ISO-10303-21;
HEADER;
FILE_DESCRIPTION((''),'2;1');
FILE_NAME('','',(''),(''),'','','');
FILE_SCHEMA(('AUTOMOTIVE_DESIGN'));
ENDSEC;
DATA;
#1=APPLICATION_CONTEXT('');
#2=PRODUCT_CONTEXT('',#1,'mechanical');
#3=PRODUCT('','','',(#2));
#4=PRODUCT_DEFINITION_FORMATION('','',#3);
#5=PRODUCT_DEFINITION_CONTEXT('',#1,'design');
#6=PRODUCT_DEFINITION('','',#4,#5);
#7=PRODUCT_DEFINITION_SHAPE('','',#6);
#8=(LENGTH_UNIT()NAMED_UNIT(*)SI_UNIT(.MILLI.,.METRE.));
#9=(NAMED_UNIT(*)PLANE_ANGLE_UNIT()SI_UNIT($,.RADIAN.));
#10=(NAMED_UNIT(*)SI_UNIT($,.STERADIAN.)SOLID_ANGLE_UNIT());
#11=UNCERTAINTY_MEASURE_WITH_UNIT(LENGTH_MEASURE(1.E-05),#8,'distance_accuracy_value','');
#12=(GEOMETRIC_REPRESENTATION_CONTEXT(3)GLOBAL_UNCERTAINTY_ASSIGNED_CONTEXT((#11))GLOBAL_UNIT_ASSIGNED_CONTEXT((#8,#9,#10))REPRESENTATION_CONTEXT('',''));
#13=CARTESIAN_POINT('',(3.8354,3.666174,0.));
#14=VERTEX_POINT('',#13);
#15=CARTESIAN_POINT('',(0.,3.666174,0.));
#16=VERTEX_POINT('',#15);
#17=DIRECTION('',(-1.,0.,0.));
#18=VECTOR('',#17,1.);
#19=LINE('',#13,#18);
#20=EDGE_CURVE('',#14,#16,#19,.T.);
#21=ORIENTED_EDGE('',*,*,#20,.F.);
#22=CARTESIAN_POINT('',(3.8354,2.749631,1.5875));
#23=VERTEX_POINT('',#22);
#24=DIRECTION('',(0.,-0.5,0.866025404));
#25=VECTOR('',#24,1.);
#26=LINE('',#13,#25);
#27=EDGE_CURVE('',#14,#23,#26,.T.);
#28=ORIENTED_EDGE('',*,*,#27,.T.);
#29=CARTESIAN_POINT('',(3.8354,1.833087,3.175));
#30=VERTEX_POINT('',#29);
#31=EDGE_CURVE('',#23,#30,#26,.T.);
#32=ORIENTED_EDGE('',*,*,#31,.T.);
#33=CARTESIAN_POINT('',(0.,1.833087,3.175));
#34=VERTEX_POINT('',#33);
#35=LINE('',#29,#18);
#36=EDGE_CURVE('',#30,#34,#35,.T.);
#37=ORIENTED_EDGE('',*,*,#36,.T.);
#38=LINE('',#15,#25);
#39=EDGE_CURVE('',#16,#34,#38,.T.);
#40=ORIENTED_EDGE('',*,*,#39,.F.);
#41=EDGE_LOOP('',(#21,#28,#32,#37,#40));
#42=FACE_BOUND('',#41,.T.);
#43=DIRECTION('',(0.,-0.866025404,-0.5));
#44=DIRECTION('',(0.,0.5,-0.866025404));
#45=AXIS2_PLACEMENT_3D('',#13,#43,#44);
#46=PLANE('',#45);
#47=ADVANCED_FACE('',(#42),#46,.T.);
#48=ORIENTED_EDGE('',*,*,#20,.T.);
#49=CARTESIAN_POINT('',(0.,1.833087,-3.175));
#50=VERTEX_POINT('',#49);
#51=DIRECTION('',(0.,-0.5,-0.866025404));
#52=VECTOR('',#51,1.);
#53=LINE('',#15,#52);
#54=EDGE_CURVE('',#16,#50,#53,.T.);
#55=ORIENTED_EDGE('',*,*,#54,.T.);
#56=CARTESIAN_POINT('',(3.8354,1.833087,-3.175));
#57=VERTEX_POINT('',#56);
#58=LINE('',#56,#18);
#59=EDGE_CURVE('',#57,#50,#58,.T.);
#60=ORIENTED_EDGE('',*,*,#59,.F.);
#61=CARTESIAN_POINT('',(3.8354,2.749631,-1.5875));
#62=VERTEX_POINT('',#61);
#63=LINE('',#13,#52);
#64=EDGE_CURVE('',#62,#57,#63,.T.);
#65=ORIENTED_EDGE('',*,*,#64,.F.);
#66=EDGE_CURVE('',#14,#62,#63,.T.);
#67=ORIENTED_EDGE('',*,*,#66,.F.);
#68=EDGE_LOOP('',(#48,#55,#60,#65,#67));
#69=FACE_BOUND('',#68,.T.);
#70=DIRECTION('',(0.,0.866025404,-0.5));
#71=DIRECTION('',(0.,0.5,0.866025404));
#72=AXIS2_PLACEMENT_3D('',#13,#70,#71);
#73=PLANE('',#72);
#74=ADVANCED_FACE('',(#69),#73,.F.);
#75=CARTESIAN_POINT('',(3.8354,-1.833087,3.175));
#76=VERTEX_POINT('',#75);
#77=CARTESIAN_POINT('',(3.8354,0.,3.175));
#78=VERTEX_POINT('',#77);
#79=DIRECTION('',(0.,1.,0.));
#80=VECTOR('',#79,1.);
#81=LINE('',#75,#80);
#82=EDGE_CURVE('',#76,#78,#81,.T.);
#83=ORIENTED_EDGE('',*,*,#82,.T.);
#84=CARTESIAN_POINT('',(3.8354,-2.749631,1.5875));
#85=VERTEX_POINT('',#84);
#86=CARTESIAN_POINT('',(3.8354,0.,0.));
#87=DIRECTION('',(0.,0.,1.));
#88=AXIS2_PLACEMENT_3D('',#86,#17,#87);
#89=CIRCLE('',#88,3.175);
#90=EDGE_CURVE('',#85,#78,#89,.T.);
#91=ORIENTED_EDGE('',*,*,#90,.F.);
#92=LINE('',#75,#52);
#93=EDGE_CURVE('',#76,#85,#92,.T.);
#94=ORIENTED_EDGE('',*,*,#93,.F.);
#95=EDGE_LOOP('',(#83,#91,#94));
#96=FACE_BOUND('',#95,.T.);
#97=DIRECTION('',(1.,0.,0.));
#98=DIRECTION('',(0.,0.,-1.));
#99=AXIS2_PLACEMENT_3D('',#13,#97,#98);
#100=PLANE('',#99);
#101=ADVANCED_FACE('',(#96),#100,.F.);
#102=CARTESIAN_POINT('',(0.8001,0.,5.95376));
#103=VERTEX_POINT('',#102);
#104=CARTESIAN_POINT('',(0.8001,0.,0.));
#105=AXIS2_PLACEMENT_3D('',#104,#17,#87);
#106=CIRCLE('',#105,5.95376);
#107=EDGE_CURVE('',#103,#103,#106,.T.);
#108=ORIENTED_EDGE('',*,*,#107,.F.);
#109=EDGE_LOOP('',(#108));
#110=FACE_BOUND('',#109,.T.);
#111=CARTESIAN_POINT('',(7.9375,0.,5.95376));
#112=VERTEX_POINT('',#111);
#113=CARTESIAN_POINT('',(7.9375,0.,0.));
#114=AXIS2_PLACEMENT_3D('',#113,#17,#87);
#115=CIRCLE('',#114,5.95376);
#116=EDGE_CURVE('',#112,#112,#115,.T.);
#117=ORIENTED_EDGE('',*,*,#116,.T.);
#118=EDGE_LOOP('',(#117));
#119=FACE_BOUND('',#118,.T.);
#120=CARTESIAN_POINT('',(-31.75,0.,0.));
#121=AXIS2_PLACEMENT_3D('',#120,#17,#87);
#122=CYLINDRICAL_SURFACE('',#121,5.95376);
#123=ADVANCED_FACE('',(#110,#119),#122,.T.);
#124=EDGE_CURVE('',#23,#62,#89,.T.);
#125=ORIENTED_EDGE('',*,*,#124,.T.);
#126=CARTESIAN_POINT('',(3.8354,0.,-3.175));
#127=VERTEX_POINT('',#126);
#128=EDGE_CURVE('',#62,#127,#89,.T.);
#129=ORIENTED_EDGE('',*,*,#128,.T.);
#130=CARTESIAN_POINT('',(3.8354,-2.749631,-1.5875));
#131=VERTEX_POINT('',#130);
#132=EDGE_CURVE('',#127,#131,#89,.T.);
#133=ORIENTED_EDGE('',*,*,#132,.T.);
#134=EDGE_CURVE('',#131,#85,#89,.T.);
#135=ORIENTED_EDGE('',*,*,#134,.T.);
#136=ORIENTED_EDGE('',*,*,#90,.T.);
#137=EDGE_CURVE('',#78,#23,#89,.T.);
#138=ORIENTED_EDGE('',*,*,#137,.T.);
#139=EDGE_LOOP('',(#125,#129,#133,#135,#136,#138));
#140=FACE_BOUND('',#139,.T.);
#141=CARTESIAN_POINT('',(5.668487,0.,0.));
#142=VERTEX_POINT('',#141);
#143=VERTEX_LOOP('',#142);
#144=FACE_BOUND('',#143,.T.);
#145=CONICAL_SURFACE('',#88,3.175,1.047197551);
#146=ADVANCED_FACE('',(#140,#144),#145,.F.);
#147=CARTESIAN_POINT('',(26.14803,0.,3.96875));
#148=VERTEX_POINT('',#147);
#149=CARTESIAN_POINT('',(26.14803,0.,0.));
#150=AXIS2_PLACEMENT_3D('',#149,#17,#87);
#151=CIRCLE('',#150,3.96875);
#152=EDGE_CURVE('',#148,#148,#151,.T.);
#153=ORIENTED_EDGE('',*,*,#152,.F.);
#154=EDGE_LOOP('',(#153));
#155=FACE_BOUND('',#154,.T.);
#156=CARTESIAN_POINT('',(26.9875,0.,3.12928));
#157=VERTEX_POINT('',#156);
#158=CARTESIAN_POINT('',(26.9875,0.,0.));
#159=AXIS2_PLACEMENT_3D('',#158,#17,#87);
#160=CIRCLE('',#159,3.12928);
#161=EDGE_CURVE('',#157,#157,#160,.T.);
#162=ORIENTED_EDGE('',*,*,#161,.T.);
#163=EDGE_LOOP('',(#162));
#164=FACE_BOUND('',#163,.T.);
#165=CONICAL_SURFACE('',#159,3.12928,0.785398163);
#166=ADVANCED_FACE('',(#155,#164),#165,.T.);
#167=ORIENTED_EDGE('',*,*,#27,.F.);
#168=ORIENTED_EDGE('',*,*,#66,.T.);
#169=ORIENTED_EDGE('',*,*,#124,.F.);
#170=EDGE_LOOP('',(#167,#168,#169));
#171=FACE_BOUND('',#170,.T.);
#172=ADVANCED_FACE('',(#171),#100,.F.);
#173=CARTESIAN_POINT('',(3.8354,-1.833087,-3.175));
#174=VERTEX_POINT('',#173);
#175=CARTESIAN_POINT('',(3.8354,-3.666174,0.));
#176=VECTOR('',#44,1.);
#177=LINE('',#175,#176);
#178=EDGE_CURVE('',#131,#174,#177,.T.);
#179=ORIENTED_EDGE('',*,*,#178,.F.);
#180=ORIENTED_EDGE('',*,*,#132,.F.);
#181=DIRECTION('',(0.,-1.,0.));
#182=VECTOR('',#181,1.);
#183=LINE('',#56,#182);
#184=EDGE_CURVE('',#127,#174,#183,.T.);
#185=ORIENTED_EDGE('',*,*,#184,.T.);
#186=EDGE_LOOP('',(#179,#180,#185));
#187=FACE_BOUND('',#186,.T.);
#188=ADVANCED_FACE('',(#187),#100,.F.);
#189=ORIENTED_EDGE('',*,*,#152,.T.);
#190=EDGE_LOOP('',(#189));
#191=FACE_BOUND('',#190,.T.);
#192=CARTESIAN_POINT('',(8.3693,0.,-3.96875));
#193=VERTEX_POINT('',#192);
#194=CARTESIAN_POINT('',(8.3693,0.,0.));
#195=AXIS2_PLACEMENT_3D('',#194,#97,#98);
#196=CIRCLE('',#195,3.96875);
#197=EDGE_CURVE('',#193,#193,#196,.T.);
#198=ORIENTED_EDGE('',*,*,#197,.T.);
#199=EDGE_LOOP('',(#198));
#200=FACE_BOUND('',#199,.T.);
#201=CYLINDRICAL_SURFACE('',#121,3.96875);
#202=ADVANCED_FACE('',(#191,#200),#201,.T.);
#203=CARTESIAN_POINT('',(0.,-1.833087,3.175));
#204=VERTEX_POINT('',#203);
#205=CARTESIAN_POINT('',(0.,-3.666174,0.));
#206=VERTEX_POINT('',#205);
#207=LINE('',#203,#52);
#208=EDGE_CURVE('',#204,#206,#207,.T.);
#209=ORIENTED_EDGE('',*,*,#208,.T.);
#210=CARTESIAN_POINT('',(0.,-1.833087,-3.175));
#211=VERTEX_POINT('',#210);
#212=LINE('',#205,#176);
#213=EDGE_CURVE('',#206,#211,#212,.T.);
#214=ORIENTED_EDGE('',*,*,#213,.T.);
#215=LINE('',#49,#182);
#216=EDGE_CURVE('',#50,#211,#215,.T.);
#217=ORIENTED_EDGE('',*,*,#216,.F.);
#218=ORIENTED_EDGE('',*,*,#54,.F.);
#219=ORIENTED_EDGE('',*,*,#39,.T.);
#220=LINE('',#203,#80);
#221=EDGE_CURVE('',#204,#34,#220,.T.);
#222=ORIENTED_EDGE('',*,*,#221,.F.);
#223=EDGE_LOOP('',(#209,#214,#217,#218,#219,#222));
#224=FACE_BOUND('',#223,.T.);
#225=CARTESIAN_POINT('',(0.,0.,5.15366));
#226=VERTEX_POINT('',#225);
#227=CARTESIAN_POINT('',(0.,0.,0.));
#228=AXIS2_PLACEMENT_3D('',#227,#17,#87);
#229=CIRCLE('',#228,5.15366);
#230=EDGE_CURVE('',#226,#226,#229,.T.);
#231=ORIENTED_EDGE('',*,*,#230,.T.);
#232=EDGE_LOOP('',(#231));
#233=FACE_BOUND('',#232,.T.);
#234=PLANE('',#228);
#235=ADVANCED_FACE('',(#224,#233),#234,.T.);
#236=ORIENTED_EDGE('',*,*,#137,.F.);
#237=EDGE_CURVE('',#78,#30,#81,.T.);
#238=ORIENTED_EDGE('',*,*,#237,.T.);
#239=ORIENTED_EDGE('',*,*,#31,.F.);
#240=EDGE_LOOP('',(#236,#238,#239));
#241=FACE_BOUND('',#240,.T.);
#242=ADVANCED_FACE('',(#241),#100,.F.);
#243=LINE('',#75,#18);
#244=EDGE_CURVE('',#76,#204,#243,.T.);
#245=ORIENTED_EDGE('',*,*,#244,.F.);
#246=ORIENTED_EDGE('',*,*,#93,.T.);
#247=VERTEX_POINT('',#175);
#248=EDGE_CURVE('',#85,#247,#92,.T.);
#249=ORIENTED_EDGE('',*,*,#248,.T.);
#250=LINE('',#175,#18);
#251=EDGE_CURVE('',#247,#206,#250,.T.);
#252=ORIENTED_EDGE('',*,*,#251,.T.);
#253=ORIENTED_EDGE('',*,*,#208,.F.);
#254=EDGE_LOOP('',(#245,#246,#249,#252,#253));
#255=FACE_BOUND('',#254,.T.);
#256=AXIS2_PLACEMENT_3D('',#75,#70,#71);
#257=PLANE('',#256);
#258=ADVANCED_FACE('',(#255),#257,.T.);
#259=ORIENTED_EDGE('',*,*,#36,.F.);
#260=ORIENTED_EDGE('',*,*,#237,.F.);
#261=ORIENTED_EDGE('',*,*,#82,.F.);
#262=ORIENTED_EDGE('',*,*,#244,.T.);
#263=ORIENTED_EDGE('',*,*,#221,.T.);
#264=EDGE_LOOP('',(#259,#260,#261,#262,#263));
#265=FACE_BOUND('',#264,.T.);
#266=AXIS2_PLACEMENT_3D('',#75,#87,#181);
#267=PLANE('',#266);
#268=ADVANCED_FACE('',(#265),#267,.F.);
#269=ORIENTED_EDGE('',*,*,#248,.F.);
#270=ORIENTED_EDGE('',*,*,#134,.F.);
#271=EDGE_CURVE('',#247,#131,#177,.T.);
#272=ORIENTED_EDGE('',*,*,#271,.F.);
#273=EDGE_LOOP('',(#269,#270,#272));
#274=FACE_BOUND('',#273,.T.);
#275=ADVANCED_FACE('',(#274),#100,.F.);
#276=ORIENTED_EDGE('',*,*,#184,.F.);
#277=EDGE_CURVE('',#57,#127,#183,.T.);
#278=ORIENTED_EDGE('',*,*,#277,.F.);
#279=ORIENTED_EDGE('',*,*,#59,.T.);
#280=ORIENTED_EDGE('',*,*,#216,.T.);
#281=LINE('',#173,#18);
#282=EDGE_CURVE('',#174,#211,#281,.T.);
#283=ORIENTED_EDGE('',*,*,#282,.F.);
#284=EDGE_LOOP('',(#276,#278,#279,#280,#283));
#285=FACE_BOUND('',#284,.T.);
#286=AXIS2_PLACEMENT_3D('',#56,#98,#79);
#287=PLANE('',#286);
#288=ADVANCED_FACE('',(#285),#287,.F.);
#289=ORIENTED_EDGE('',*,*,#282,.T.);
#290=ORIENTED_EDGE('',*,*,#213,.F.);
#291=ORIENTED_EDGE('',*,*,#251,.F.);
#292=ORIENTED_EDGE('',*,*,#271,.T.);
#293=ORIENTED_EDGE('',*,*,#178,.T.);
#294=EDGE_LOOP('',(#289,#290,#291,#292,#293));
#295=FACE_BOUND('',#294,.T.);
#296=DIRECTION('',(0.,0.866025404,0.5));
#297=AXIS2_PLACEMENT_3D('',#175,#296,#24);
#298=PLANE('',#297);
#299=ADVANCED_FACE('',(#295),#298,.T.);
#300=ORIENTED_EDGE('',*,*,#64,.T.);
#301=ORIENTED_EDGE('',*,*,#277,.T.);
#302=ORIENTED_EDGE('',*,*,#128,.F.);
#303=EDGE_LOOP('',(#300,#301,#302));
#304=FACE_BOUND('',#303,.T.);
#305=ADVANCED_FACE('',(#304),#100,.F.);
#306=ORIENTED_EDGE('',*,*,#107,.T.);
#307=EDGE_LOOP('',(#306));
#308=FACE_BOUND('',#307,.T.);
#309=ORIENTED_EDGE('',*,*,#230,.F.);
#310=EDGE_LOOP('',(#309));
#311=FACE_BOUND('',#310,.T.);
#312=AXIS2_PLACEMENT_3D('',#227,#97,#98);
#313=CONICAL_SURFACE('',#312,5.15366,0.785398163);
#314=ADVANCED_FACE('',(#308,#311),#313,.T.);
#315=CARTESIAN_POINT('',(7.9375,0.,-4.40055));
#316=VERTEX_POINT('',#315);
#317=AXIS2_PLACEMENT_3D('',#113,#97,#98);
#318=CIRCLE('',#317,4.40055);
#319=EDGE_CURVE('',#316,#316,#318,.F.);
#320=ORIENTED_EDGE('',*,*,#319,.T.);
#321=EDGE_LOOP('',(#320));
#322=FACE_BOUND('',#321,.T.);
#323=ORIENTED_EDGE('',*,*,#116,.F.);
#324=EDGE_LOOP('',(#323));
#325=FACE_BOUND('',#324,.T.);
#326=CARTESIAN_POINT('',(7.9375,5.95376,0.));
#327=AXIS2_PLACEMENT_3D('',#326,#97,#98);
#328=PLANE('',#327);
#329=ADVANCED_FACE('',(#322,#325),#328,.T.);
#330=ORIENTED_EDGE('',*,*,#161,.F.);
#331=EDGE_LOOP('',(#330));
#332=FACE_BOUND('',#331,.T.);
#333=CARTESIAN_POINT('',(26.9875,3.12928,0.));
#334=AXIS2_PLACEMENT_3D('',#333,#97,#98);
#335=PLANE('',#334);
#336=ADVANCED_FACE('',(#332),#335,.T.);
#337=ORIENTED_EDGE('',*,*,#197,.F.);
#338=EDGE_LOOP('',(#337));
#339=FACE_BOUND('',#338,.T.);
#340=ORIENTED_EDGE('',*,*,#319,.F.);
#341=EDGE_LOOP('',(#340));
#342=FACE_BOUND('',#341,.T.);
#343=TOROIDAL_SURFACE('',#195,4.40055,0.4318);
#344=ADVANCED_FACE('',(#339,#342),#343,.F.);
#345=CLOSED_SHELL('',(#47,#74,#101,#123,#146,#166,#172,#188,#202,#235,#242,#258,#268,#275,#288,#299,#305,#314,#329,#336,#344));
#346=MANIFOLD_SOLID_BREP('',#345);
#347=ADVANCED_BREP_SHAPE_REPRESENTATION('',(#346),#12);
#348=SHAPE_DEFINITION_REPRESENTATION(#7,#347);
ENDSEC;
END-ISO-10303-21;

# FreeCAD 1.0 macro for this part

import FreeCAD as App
import Part
import Sketcher

V = App.Vector
Q = App.Units.Quantity


def edges_at(feature, points):
    """Names of the edges that pass closest to the given points."""
    edges = feature.Shape.Edges
    near = lambda p: min(range(len(edges)), key=lambda i: edges[i].distToShape(Part.Vertex(*p))[0])
    return sorted({f"Edge{near(p) + 1}" for p in points})


def add_polygon(sketch, points):
    """Adds a closed chain of lines whose ends are joined by coincident constraints."""
    first, n = sketch.GeometryCount, len(points)
    for a, b in zip(points, points[1:] + points[:1]):
        sketch.addGeometry(Part.LineSegment(App.Vector(*a, 0), App.Vector(*b, 0)), False)
    for i in range(n):
        sketch.addConstraint(Sketcher.Constraint("Coincident", first + i, 2, first + (i + 1) % n, 1))

doc = App.newDocument("Part")
params = doc.addObject("Spreadsheet::Sheet", "Params")
for row, (alias, value) in enumerate([
    ("sketch1_width", "1.0625 in"),
    ("sketch1_width2", "0.281 in"),
    ("revolution_angle", "360 deg"),
    ("fillet_radius", "0.017 in"),
    ("sketch2_width", "0.151 in"),
    ("sketch2_height", "0.125 in"),
    ("groove_angle", "360 deg"),
    ("pocket1_length", "0.151 in"),
], start=1):
    params.set(f"A{row}", alias)
    params.set(f"B{row}", "=" + value)
    params.setAlias(f"B{row}", alias)

body = doc.addObject("PartDesign::Body", "Body")

# Sketch on XY plane
sketch1 = doc.addObject("Sketcher::SketchObject", "Sketch")
body.addObject(sketch1)
sketch1.AttachmentSupport = (doc.XY_Plane, [""])
sketch1.MapMode = "FlatFace"
add_polygon(sketch1, [(0, 5.2), (0, 0), (27, 0), (27, 3.1), (26.1, 4), (7.9, 4), (7.9, 6), (0.8, 6)])  # lines 0-7
sketch1.addConstraint(Sketcher.Constraint("Vertical", 0))
sketch1.addConstraint(Sketcher.Constraint("Horizontal", 1))
sketch1.addConstraint(Sketcher.Constraint("Vertical", 2))
sketch1.addConstraint(Sketcher.Constraint("Horizontal", 4))
sketch1.addConstraint(Sketcher.Constraint("Vertical", 5))
sketch1.addConstraint(Sketcher.Constraint("Horizontal", 6))
sketch1.addConstraint(Sketcher.Constraint("Coincident", 0, 2, -1, 1))
sketch1.addConstraint(Sketcher.Constraint("Perpendicular", 3, 7))
sketch1.addConstraint(Sketcher.Constraint("Angle", 3, Q("135 deg")))
sketch1.addConstraint(Sketcher.Constraint("DistanceX", 1, 1, 1, 2, Q("1.0625 in")))
sketch1.addConstraint(Sketcher.Constraint("DistanceX", 6, 2, 6, 1, Q("0.281 in")))
sketch1.addConstraint(Sketcher.Constraint("DistanceX", 4, 2, 2, 2, Q("0.75 in")))
sketch1.addConstraint(Sketcher.Constraint("DistanceY", 0, 2, 0, 1, Q("0.2029 in")))
sketch1.addConstraint(Sketcher.Constraint("DistanceY", 2, 1, 2, 2, Q("0.1232 in")))
sketch1.addConstraint(Sketcher.Constraint("DistanceY", -1, 1, 3, 2, Q("0.15625 in")))
sketch1.setExpression("Constraints[17]", "Params.sketch1_width")
sketch1.setExpression("Constraints[18]", "Params.sketch1_width2")
revolution = doc.addObject("PartDesign::Revolution", "Revolution")
body.addObject(revolution)
revolution.Profile = sketch1
revolution.ReferenceAxis = (sketch1, ["H_Axis"])
revolution.setExpression("Angle", "Params.revolution_angle")
doc.recompute()

fillet = doc.addObject("PartDesign::Fillet", "Fillet")
body.addObject(fillet)
fillet.Base = (revolution, edges_at(revolution, [(7.938, -3.969, 0)]))
fillet.setExpression("Radius", "Params.fillet_radius")

# Sketch on XY plane
sketch2 = doc.addObject("Sketcher::SketchObject", "Sketch001")
body.addObject(sketch2)
sketch2.AttachmentSupport = (doc.XY_Plane, [""])
sketch2.MapMode = "FlatFace"
add_polygon(sketch2, [(3.8, 3.2), (0, 3.2), (0, 0), (5.7, 0)])  # lines 0-3
sketch2.addConstraint(Sketcher.Constraint("Horizontal", 0))
sketch2.addConstraint(Sketcher.Constraint("Vertical", 1))
sketch2.addConstraint(Sketcher.Constraint("Horizontal", 2))
sketch2.addConstraint(Sketcher.Constraint("Coincident", 1, 2, -1, 1))
sketch2.addConstraint(Sketcher.Constraint("Angle", 3, Q("120 deg")))
sketch2.addConstraint(Sketcher.Constraint("DistanceX", 0, 2, 0, 1, Q("0.151 in")))
sketch2.addConstraint(Sketcher.Constraint("DistanceY", 1, 2, 1, 1, Q("0.125 in")))
sketch2.setExpression("Constraints[9]", "Params.sketch2_width")
sketch2.setExpression("Constraints[10]", "Params.sketch2_height")
groove = doc.addObject("PartDesign::Groove", "Groove")
body.addObject(groove)
groove.Profile = sketch2
groove.ReferenceAxis = (sketch2, ["H_Axis"])
groove.setExpression("Angle", "Params.groove_angle")

# Sketch on YZ plane
sketch3 = doc.addObject("Sketcher::SketchObject", "Sketch002")
body.addObject(sketch3)
sketch3.AttachmentSupport = (doc.YZ_Plane, [""])
sketch3.MapMode = "FlatFace"
add_polygon(sketch3, [(3.7, 0), (1.8, -3.2), (-1.8, -3.2), (-3.7, 0), (-1.8, 3.2), (1.8, 3.2)])  # lines 0-5
sketch3.addConstraint(Sketcher.Constraint("Horizontal", 1))
sketch3.addConstraint(Sketcher.Constraint("Horizontal", 4))
sketch3.addConstraint(Sketcher.Constraint("Symmetric", 0, 2, 3, 2, -1, 1))
sketch3.addConstraint(Sketcher.Constraint("Symmetric", 2, 2, 5, 2, -1, 1))
sketch3.addConstraint(Sketcher.Constraint("PointOnObject", 2, 2, -1))
sketch3.addConstraint(Sketcher.Constraint("Parallel", 2, 5))
sketch3.addConstraint(Sketcher.Constraint("Vertical", 1, 2, 3, 2))
sketch3.addConstraint(Sketcher.Constraint("Angle", 0, Q("-120 deg")))
sketch3.addConstraint(Sketcher.Constraint("DistanceY", 1, 2, 3, 2, Q("0.25 in")))
sketch3.addConstraint(Sketcher.Constraint("DistanceX", 1, 2, 1, 1, Q("3.666174 mm")))
pocket1 = doc.addObject("PartDesign::Pocket", "Pocket")
body.addObject(pocket1)
pocket1.Profile = sketch3
pocket1.setExpression("Length", "Params.pocket1_length")
pocket1.Reversed = True

doc.recompute()
